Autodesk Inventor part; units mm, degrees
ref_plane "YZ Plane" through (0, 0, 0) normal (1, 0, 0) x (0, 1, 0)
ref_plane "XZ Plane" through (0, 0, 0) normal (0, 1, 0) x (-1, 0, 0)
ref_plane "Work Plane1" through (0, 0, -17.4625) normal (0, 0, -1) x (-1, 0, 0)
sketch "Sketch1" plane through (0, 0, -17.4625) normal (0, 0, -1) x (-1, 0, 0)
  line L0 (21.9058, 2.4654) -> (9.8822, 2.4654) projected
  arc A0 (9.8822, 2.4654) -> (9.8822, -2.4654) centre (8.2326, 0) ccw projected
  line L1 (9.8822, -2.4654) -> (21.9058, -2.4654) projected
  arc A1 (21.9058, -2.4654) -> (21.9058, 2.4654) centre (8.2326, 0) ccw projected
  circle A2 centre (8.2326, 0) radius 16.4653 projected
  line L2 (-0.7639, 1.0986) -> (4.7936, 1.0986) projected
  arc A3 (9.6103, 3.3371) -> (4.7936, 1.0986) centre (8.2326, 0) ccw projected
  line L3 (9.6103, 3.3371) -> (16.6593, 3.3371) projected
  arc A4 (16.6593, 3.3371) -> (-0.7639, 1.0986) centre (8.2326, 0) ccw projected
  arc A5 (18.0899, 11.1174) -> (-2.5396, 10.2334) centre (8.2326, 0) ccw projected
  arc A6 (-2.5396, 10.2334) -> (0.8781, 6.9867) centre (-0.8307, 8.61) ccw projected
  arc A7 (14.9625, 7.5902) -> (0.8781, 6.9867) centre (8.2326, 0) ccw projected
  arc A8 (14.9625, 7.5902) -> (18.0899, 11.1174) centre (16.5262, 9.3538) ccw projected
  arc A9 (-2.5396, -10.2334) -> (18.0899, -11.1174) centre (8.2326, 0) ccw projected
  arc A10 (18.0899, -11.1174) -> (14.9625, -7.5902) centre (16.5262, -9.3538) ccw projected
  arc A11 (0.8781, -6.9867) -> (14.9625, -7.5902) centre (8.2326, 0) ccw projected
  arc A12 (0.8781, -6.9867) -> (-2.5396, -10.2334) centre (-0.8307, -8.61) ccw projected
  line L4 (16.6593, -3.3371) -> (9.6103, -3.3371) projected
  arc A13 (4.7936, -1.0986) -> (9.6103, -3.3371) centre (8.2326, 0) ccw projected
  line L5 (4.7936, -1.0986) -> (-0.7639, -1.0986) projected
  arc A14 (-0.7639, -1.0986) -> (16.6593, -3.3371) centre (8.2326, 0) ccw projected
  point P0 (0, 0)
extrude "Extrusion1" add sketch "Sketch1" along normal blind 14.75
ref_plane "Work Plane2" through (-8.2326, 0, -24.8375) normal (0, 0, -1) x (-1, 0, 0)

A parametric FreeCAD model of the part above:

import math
import FreeCAD as App
import Part
import Sketcher
Q = App.Units.Quantity

doc = App.newDocument("Part")
body = doc.addObject("PartDesign::Body", "Body")

sketch1 = body.newObject("Sketcher::SketchObject", "Sketch")
sketch1.AttachmentSupport = (doc.getObject("XY_Plane"), [""])
sketch1.MapMode = "FlatFace"
sketch1.AttachmentOffset = App.Placement(App.Vector(0, 0, -0.6875 * 25.4), App.Rotation())
sketch1.addGeometry([
    Part.Circle(App.Vector(-8.2326, 0, 0), App.Vector(0, 0, 1), 16.4653),
    Part.ArcOfCircle(Part.Circle(App.Vector(-8.2326, 0, 0), App.Vector(0, 0, 1), 14.858094), math.radians(-131.561966), math.radians(-43.530668)),
    Part.ArcOfCircle(Part.Circle(App.Vector(0.8307, -8.61, 0), App.Vector(0, 0, 1), 2.356926), math.radians(-43.53023), math.radians(136.469858)),
    Part.ArcOfCircle(Part.Circle(App.Vector(-8.2326, 0, 0), App.Vector(0, 0, 1), 10.144096), math.radians(-131.562008), math.radians(-43.530892)),
    Part.ArcOfCircle(Part.Circle(App.Vector(-16.5262, -9.3538, 0), App.Vector(0, 0, 1), 2.356999), math.radians(48.438126), math.radians(228.438126)),
    Part.LineSegment(App.Vector(-9.6103, -3.3371, 0), App.Vector(-16.6593, -3.3371, 0)),
    Part.ArcOfCircle(Part.Circle(App.Vector(-8.2326, 0, 0), App.Vector(0, 0, 1), 9.063416), math.radians(-158.395689), math.radians(-6.962156)),
    Part.LineSegment(App.Vector(0.7639, -1.0986, 0), App.Vector(-4.7936, -1.0986, 0)),
    Part.ArcOfCircle(Part.Circle(App.Vector(-8.2326, 0, 0), App.Vector(0, 0, 1), 3.610304), math.radians(-112.432964), math.radians(-17.716255)),
    Part.LineSegment(App.Vector(-4.7936, 1.0986, 0), App.Vector(0.7639, 1.0986, 0)),
    Part.ArcOfCircle(Part.Circle(App.Vector(-8.2326, 0, 0), App.Vector(0, 0, 1), 9.063329), math.radians(6.962156), math.radians(158.395689)),
    Part.LineSegment(App.Vector(-16.6593, 3.3371, 0), App.Vector(-9.6103, 3.3371, 0)),
    Part.ArcOfCircle(Part.Circle(App.Vector(-8.2326, 0, 0), App.Vector(0, 0, 1), 3.610214), math.radians(17.716255), math.radians(112.432964)),
    Part.ArcOfCircle(Part.Circle(App.Vector(-8.2326, 0, 0), App.Vector(0, 0, 1), 14.858088), math.radians(43.530668), math.radians(131.561966)),
    Part.ArcOfCircle(Part.Circle(App.Vector(-16.5262, 9.3538, 0), App.Vector(0, 0, 1), 2.356999), math.radians(131.561874), math.radians(311.561874)),
    Part.ArcOfCircle(Part.Circle(App.Vector(-8.2326, 0, 0), App.Vector(0, 0, 1), 10.144094), math.radians(43.530892), math.radians(131.562008)),
    Part.ArcOfCircle(Part.Circle(App.Vector(0.8307, 8.61, 0), App.Vector(0, 0, 1), 2.357067), math.radians(-136.469858), math.radians(43.53023)),
    Part.LineSegment(App.Vector(-9.8822, 2.4654, 0), App.Vector(-21.9058, 2.4654, 0)),
    Part.ArcOfCircle(Part.Circle(App.Vector(-8.2326, 0, 0), App.Vector(0, 0, 1), 13.893689), math.radians(169.778883), math.radians(190.221117)),
    Part.LineSegment(App.Vector(-21.9058, -2.4654, 0), App.Vector(-9.8822, -2.4654, 0)),
    Part.ArcOfCircle(Part.Circle(App.Vector(-8.2326, 0, 0), App.Vector(0, 0, 1), 2.966374), math.radians(-123.786494), math.radians(123.786494)),
], False)
sketch1.addConstraint([
    Sketcher.Constraint("Tangent", 1, 2, 2, 1),
    Sketcher.Constraint("Tangent", 2, 2, 3, 2),
    Sketcher.Constraint("Tangent", 3, 1, 4, 1),
    Sketcher.Constraint("Tangent", 4, 2, 1, 1),
    Sketcher.Constraint("Coincident", 5, 2, 6, 1),
    Sketcher.Constraint("Coincident", 6, 2, 7, 1),
    Sketcher.Constraint("Coincident", 7, 2, 8, 2),
    Sketcher.Constraint("Coincident", 8, 1, 5, 1),
    Sketcher.Constraint("Coincident", 9, 2, 10, 1),
    Sketcher.Constraint("Coincident", 10, 2, 11, 1),
    Sketcher.Constraint("Coincident", 11, 2, 12, 2),
    Sketcher.Constraint("Coincident", 12, 1, 9, 1),
    Sketcher.Constraint("Tangent", 13, 2, 14, 1),
    Sketcher.Constraint("Tangent", 14, 2, 15, 2),
    Sketcher.Constraint("Tangent", 15, 1, 16, 1),
    Sketcher.Constraint("Tangent", 16, 2, 13, 1),
    Sketcher.Constraint("Coincident", 17, 2, 18, 1),
    Sketcher.Constraint("Coincident", 18, 2, 19, 1),
    Sketcher.Constraint("Coincident", 19, 2, 20, 1),
    Sketcher.Constraint("Coincident", 20, 2, 17, 1),
    Sketcher.Constraint("Horizontal", 5),
    Sketcher.Constraint("Horizontal", 7),
    Sketcher.Constraint("Horizontal", 9),
    Sketcher.Constraint("Horizontal", 11),
    Sketcher.Constraint("Horizontal", 17),
    Sketcher.Constraint("Horizontal", 19),
    Sketcher.Constraint("Coincident", 1, 3, 0, 3),
    Sketcher.Constraint("Coincident", 3, 3, 0, 3),
    Sketcher.Constraint("Coincident", 6, 3, 0, 3),
    Sketcher.Constraint("Coincident", 8, 3, 0, 3),
    Sketcher.Constraint("Coincident", 10, 3, 0, 3),
    Sketcher.Constraint("Coincident", 12, 3, 0, 3),
    Sketcher.Constraint("Coincident", 13, 3, 0, 3),
    Sketcher.Constraint("Coincident", 15, 3, 0, 3),
    Sketcher.Constraint("Coincident", 18, 3, 0, 3),
    Sketcher.Constraint("Coincident", 20, 3, 0, 3),
    Sketcher.Constraint("Equal", 6, 10),
    Sketcher.Constraint("Equal", 8, 12),
    Sketcher.Constraint("Equal", 1, 13),
    Sketcher.Constraint("Equal", 4, 14),
    Sketcher.Constraint("Symmetric", 4, 3, 14, 3, -1),
    Sketcher.Constraint("Vertical", 2, 3, 16, 3),
    Sketcher.Constraint("Vertical", 6, 2, 9, 2),
    Sketcher.Constraint("Vertical", 5, 2, 10, 2),
    Sketcher.Constraint("Vertical", 17, 2, 18, 2),
    Sketcher.Constraint("Radius", 18, Q("0.547 in")),
    Sketcher.Constraint("Radius", 2, Q("0.0928 in")),
    Sketcher.Constraint("Diameter", 0, Q("32.9306 mm")),
    Sketcher.Constraint("Radius", 1, Q("14.858 mm")),
    Sketcher.Constraint("Radius", 6, Q("9.0634 mm")),
    Sketcher.Constraint("Radius", 8, Q("3.6103 mm")),
    Sketcher.Constraint("Radius", 20, Q("2.9664 mm")),
    Sketcher.Constraint("DistanceX", 7, 2, 7, 1, Q("0.2188 in")),
    Sketcher.Constraint("DistanceX", 5, 2, 5, 1, Q("7.049 mm")),
    Sketcher.Constraint("DistanceX", 17, 2, 17, 1, Q("12.0236 mm")),
    Sketcher.Constraint("DistanceX", -1, 1, 2, 3, Q("0.0327 in")),
    Sketcher.Constraint("DistanceY", 1, 2, -1, 1, Q("0.4029 in")),
    Sketcher.Constraint("DistanceX", 4, 2, -1, 1, Q("0.7122 in")),
])
pad1 = body.newObject("PartDesign::Pad", "Pad")
pad1.Profile = sketch1
pad1.Length = Q("0.5807087 in")
pad1.Reversed = True

doc.recompute()
